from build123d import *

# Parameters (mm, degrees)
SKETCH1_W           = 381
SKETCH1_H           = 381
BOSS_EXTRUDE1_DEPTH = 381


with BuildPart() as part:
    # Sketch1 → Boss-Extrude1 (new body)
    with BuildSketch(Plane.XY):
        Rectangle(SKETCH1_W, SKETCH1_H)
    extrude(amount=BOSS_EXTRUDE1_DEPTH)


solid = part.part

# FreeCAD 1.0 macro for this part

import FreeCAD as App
import Part
import Sketcher
Q = App.Units.Quantity

doc = App.newDocument("Part")
body = doc.addObject("PartDesign::Body", "Body")

# Sketch on XY plane
sketch1 = body.newObject("Sketcher::SketchObject", "Sketch")
sketch1.AttachmentSupport = (doc.getObject("XY_Plane"), [""])
sketch1.MapMode = "FlatFace"
sketch1.addGeometry([
    Part.LineSegment(App.Vector(-190, 190, 0), App.Vector(-190, -190, 0)),
    Part.LineSegment(App.Vector(-190, -190, 0), App.Vector(190, -190, 0)),
    Part.LineSegment(App.Vector(190, -190, 0), App.Vector(190, 190, 0)),
    Part.LineSegment(App.Vector(190, 190, 0), App.Vector(-190, 190, 0)),
], False)
sketch1.addConstraint([
    Sketcher.Constraint("Coincident", 0, 2, 1, 1),
    Sketcher.Constraint("Coincident", 1, 2, 2, 1),
    Sketcher.Constraint("Coincident", 2, 2, 3, 1),
    Sketcher.Constraint("Coincident", 3, 2, 0, 1),
    Sketcher.Constraint("Vertical", 0),
    Sketcher.Constraint("Horizontal", 1),
    Sketcher.Constraint("Vertical", 2),
    Sketcher.Constraint("Horizontal", 3),
    Sketcher.Constraint("Symmetric", 0, 2, 2, 2, -1, 1),
    Sketcher.Constraint("Equal", 3, 0),
    Sketcher.Constraint("DistanceX", 1, 1, 1, 2, Q("15 in")),
])
pad1 = body.newObject("PartDesign::Pad", "Pad")
pad1.Profile = sketch1
pad1.Length = Q("15 in")

doc.recompute()
